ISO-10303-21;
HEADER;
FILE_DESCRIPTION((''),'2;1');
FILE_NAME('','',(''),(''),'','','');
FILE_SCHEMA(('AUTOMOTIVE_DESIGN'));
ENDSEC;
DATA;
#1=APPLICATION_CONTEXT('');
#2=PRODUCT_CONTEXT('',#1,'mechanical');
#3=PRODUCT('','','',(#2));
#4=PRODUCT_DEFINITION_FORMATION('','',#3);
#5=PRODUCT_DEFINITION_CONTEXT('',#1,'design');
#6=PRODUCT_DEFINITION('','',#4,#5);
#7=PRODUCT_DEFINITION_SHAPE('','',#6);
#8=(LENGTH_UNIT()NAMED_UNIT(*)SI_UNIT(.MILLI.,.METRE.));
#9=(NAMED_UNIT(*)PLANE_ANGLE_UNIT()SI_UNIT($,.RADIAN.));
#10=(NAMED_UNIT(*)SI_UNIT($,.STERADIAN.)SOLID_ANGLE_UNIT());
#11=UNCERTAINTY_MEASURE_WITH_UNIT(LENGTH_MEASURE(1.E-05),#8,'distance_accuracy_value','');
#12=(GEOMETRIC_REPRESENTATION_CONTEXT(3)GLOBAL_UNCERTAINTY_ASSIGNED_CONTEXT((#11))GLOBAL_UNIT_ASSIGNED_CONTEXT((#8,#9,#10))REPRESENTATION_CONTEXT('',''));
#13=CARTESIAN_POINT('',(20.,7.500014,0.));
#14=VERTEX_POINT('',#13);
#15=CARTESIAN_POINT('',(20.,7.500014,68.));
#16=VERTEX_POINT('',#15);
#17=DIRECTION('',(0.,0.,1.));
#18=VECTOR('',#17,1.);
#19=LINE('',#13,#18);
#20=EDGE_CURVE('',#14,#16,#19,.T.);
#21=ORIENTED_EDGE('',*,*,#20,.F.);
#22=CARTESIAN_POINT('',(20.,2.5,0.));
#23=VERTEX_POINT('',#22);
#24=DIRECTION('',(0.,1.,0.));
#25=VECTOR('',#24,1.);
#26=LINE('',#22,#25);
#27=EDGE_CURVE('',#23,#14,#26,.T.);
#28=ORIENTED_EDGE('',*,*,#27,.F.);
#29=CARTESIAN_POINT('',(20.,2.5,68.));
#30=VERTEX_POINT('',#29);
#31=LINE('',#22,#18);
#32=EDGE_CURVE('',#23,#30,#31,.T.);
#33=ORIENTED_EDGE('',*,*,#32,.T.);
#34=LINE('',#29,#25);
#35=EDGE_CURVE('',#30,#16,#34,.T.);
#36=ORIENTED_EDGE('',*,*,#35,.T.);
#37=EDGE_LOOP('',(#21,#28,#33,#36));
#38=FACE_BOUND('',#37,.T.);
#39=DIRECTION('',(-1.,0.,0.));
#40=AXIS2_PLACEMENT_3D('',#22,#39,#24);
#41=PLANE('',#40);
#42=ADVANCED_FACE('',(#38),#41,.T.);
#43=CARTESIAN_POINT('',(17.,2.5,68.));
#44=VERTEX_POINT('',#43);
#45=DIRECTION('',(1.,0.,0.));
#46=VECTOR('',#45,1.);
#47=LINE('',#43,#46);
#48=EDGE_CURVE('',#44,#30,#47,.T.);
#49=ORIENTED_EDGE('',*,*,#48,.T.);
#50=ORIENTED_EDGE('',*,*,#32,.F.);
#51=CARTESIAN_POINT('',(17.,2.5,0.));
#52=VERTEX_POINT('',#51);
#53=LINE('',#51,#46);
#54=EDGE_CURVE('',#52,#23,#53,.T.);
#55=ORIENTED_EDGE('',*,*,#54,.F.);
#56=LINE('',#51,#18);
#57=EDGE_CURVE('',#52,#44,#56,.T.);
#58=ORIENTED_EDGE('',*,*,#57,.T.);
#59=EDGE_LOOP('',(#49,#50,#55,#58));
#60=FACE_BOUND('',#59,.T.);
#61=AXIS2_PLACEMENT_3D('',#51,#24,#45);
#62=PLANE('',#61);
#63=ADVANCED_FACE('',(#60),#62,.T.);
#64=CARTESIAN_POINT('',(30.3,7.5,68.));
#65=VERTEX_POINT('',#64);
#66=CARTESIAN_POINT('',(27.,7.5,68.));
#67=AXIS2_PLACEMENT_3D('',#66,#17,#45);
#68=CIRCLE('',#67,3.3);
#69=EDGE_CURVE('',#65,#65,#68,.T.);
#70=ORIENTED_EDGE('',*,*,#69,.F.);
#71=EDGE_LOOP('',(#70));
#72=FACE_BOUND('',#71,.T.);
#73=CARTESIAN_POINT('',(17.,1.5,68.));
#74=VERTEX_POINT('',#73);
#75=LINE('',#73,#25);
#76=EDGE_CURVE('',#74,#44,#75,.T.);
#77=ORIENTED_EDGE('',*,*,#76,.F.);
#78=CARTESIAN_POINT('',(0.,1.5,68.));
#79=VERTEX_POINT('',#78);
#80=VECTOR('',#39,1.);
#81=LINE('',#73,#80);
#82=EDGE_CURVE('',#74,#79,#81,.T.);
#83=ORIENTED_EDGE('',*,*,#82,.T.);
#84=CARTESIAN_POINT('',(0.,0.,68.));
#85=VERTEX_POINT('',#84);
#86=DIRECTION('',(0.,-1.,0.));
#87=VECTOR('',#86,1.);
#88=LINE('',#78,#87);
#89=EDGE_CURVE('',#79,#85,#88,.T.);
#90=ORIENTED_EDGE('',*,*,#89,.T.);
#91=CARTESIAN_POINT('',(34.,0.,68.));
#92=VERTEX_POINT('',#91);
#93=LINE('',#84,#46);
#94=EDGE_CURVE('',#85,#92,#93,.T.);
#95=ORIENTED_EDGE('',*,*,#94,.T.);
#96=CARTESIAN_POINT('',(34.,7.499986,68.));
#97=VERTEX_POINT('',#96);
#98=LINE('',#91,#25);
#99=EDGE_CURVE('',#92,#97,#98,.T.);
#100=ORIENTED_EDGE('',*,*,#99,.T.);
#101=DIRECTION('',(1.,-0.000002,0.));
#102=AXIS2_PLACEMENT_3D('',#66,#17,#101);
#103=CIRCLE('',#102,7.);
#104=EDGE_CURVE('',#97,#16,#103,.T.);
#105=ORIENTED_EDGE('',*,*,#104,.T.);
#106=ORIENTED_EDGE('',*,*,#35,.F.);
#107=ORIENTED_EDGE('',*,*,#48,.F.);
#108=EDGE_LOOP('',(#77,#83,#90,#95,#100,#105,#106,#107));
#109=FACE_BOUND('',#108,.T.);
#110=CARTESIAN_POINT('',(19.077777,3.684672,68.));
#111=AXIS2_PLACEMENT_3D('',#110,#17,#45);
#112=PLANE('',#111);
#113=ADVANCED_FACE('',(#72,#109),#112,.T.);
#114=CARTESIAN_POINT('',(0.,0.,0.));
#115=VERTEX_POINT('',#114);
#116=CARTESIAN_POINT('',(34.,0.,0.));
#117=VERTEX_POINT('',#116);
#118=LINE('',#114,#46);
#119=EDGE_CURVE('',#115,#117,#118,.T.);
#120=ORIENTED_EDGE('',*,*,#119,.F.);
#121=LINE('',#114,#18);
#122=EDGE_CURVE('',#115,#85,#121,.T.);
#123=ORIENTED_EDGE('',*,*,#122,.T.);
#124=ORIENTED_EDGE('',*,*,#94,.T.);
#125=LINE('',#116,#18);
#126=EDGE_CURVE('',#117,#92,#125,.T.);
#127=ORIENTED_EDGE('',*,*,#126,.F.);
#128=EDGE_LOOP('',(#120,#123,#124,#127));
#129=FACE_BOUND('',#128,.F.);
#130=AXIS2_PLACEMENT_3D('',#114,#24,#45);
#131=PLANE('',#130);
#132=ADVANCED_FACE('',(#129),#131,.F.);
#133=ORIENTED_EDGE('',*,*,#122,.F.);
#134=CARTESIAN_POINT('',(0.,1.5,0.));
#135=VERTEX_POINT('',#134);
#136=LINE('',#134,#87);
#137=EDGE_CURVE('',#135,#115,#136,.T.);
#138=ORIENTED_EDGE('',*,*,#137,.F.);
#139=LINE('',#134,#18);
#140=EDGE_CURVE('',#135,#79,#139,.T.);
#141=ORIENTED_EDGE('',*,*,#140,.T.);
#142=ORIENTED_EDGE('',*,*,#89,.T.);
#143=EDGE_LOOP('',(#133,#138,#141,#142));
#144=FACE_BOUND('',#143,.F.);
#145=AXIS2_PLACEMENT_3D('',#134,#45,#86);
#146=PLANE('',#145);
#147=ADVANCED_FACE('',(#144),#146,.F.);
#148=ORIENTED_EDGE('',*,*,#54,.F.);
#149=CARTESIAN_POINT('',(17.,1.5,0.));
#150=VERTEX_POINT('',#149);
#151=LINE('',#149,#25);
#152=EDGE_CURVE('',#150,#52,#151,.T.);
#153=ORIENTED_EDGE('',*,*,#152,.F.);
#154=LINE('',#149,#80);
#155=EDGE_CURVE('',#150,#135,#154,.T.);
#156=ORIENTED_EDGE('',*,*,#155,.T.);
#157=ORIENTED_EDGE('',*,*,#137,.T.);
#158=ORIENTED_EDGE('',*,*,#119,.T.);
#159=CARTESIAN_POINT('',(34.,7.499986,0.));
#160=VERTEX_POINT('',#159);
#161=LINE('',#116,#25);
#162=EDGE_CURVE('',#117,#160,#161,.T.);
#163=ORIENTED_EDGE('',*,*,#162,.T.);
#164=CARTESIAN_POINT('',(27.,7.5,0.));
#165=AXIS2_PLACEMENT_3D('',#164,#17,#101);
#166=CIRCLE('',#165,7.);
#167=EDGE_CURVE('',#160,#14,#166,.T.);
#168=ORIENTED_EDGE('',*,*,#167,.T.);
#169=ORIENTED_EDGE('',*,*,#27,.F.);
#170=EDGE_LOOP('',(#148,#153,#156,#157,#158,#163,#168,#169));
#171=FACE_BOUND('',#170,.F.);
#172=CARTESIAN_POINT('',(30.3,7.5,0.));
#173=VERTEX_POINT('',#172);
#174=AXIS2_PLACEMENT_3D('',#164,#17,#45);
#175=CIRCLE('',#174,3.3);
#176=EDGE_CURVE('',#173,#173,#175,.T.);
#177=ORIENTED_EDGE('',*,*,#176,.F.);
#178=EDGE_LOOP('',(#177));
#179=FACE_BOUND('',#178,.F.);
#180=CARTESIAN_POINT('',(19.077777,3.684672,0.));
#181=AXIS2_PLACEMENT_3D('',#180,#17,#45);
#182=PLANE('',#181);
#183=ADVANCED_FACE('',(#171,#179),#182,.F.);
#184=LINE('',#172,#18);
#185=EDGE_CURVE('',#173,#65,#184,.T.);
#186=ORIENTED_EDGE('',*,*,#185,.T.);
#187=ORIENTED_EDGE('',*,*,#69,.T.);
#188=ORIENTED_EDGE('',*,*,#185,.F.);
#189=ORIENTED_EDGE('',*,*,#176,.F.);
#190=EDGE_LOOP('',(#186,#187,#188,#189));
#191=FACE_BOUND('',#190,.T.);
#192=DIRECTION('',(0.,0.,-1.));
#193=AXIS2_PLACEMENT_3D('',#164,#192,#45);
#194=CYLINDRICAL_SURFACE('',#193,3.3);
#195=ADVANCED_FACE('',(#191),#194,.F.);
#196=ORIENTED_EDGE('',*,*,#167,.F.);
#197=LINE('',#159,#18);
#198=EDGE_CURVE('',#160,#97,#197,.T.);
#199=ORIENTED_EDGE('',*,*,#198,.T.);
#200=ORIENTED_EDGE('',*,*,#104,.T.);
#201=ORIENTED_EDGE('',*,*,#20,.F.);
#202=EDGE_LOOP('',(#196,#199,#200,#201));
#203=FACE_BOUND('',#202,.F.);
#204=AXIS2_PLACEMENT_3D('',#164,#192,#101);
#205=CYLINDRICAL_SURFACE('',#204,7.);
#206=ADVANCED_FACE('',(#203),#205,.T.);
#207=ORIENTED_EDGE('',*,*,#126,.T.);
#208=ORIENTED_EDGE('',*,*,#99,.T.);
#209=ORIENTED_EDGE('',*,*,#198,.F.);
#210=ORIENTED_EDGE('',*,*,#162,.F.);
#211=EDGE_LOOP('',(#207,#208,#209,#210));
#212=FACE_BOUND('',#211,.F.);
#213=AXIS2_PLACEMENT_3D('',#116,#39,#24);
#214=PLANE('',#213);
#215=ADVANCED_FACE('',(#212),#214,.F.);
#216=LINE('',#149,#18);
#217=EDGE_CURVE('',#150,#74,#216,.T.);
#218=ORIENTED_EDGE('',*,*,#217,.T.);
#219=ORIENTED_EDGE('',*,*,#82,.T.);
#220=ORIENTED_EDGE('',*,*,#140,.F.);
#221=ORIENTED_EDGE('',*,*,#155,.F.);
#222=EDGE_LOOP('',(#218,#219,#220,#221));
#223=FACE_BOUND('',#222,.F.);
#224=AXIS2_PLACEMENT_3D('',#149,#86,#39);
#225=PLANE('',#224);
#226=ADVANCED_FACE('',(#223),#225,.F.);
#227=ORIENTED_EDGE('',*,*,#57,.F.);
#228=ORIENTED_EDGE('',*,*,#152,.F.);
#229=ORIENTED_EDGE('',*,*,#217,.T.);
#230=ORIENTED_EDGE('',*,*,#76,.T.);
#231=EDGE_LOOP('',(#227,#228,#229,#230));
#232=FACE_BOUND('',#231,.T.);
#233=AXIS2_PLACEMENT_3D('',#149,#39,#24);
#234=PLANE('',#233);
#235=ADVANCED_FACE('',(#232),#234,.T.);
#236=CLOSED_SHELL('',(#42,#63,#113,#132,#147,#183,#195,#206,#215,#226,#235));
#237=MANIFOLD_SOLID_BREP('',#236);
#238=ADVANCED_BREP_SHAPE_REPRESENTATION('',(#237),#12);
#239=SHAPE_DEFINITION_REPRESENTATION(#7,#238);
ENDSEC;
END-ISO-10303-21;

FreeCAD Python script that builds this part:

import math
import FreeCAD as App
import Part
import Sketcher
from FreeCAD import Vector

doc = App.newDocument("Part")
body = doc.addObject("PartDesign::Body", "Body")

sketch1 = doc.addObject("Sketcher::SketchObject", "Sketch")
body.addObject(sketch1)
sketch1.AttachmentSupport = (doc.XY_Plane, [""])
sketch1.MapMode = "FlatFace"
sketch1.addGeometry([
    Part.LineSegment(Vector(17, 1.5, 0), Vector(0, 1.5, 0)),
    Part.LineSegment(Vector(0, 1.5, 0), Vector(0, 0, 0)),
    Part.LineSegment(Vector(0, 0, 0), Vector(34, 0, 0)),
    Part.LineSegment(Vector(34, 0, 0), Vector(34, 7.5, 0)),
    Part.ArcOfCircle(Part.Circle(Vector(27, 7.5, 0), Vector(0, 0, 1), 7), math.radians(0), math.radians(180)),
    Part.LineSegment(Vector(20, 7.5, 0), Vector(20, 2.5, 0)),
    Part.LineSegment(Vector(20, 2.5, 0), Vector(17, 2.5, 0)),
    Part.LineSegment(Vector(17, 2.5, 0), Vector(17, 1.5, 0)),
    Part.Circle(Vector(27, 7.5, 0), Vector(0, 0, 1), 3.3),
], False)
sketch1.addConstraint([
    Sketcher.Constraint("Coincident", 0, 2, 1, 1),
    Sketcher.Constraint("Coincident", 1, 2, 2, 1),
    Sketcher.Constraint("Coincident", 2, 2, 3, 1),
    Sketcher.Constraint("Coincident", 3, 2, 4, 1),
    Sketcher.Constraint("Tangent", 4, 2, 5, 1),
    Sketcher.Constraint("Coincident", 5, 2, 6, 1),
    Sketcher.Constraint("Coincident", 6, 2, 7, 1),
    Sketcher.Constraint("Coincident", 7, 2, 0, 1),
    Sketcher.Constraint("Horizontal", 0),
    Sketcher.Constraint("Vertical", 1),
    Sketcher.Constraint("Horizontal", 2),
    Sketcher.Constraint("Vertical", 3),
    Sketcher.Constraint("Vertical", 5),
    Sketcher.Constraint("Horizontal", 6),
    Sketcher.Constraint("Vertical", 7),
    Sketcher.Constraint("Coincident", 1, 2, -1, 1),
    Sketcher.Constraint("Coincident", 8, 3, 4, 3),
    Sketcher.Constraint("Radius", 4, 7.0),
    Sketcher.Constraint("Diameter", 8, 6.6),
    Sketcher.Constraint("DistanceX", 0, 2, 0, 1, 17.0),
    Sketcher.Constraint("DistanceX", 2, 1, 2, 2, 34.0),
    Sketcher.Constraint("DistanceY", 7, 2, 7, 1, 1.0),
    Sketcher.Constraint("DistanceY", 1, 2, 1, 1, 1.5),
    Sketcher.Constraint("DistanceY", 0, 2, 4, 3, 6.0),
    Sketcher.Constraint("DistanceY", 3, 1, 3, 2, 7.499986),
])
pad1 = doc.addObject("PartDesign::Pad", "Pad")
body.addObject(pad1)
pad1.Profile = sketch1
pad1.Length = 68

doc.recompute()
